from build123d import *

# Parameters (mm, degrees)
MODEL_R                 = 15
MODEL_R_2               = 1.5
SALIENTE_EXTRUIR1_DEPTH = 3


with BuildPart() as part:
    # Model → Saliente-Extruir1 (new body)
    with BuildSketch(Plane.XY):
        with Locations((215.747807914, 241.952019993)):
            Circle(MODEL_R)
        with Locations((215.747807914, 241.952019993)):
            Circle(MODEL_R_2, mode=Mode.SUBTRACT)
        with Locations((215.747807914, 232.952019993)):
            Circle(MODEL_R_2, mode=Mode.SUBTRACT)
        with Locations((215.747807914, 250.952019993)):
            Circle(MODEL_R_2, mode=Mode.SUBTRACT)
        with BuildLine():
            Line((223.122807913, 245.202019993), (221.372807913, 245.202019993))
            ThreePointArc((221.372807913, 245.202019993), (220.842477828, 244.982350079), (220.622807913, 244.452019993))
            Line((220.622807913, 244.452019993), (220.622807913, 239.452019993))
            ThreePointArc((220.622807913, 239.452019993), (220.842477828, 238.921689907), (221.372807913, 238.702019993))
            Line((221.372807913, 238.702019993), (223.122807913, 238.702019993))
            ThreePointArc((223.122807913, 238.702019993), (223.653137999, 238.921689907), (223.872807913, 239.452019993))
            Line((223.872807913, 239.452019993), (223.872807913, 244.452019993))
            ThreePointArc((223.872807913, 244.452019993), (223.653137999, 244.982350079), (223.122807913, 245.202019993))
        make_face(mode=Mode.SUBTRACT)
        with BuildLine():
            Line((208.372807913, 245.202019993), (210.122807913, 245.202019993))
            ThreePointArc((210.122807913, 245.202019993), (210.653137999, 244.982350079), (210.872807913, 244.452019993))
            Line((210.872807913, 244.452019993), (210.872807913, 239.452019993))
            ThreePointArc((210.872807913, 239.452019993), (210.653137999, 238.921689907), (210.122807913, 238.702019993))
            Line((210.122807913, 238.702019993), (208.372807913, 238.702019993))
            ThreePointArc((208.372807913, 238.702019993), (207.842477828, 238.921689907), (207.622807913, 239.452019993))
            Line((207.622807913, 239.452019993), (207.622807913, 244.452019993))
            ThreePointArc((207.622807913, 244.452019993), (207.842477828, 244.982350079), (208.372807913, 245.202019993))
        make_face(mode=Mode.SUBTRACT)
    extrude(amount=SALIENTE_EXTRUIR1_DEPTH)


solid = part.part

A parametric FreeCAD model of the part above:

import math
import FreeCAD as App
import Part
import Sketcher
from FreeCAD import Vector

doc = App.newDocument("Part")
params = doc.addObject("Spreadsheet::Sheet", "Params")
for row, (alias, value) in enumerate([
    ("sketch1_diameter", "30 mm"),
    ("sketch1_diameter2", "3 mm"),
    ("sketch1_height", "5 mm"),
    ("sketch1_radius", "0.75 mm"),
    ("sketch1_width", "1.75 mm"),
    ("pad1_length", "3 mm"),
], start=1):
    params.set(f"A{row}", alias)
    params.set(f"B{row}", "=" + value)
    params.setAlias(f"B{row}", alias)

body = doc.addObject("PartDesign::Body", "Body")

# Sketch on XY plane
sketch1 = doc.addObject("Sketcher::SketchObject", "Sketch")
body.addObject(sketch1)
sketch1.AttachmentSupport = (doc.XY_Plane, [""])
sketch1.MapMode = "FlatFace"
sketch1.addGeometry([
    Part.Circle(Vector(215.7, 242, 0), Vector(0, 0, 1), 15),  # 0
    Part.Circle(Vector(215.7, 233, 0), Vector(0, 0, 1), 1.5),  # 1
    Part.ArcOfCircle(Part.Circle(Vector(208.4, 244.5, 0), Vector(0, 0, 1), 0.8), math.radians(90), math.radians(180)),  # 2
    Part.LineSegment(Vector(208.4, 245.2, 0), Vector(210.1, 245.2, 0)),  # 3
    Part.ArcOfCircle(Part.Circle(Vector(210.1, 244.5, 0), Vector(0, 0, 1), 0.8), math.radians(0), math.radians(90)),  # 4
    Part.LineSegment(Vector(210.9, 244.5, 0), Vector(210.9, 239.5, 0)),  # 5
    Part.ArcOfCircle(Part.Circle(Vector(210.1, 239.5, 0), Vector(0, 0, 1), 0.8), math.radians(-90), math.radians(0)),  # 6
    Part.LineSegment(Vector(210.1, 238.7, 0), Vector(208.4, 238.7, 0)),  # 7
    Part.ArcOfCircle(Part.Circle(Vector(208.4, 239.5, 0), Vector(0, 0, 1), 0.8), math.radians(-180), math.radians(-90)),  # 8
    Part.LineSegment(Vector(207.6, 239.5, 0), Vector(207.6, 244.5, 0)),  # 9
    Part.Circle(Vector(215.7, 242, 0), Vector(0, 0, 1), 1.5),  # 10
    Part.LineSegment(Vector(221.4, 245.2, 0), Vector(223.1, 245.2, 0)),  # 11
    Part.ArcOfCircle(Part.Circle(Vector(223.1, 244.5, 0), Vector(0, 0, 1), 0.8), math.radians(0), math.radians(90)),  # 12
    Part.LineSegment(Vector(223.9, 244.5, 0), Vector(223.9, 239.5, 0)),  # 13
    Part.ArcOfCircle(Part.Circle(Vector(223.1, 239.5, 0), Vector(0, 0, 1), 0.8), math.radians(-90), math.radians(0)),  # 14
    Part.LineSegment(Vector(223.1, 238.7, 0), Vector(221.4, 238.7, 0)),  # 15
    Part.ArcOfCircle(Part.Circle(Vector(221.4, 239.5, 0), Vector(0, 0, 1), 0.8), math.radians(-180), math.radians(-90)),  # 16
    Part.LineSegment(Vector(220.6, 239.5, 0), Vector(220.6, 244.5, 0)),  # 17
    Part.ArcOfCircle(Part.Circle(Vector(221.4, 244.5, 0), Vector(0, 0, 1), 0.8), math.radians(90), math.radians(180)),  # 18
    Part.Circle(Vector(215.7, 251, 0), Vector(0, 0, 1), 1.5),  # 19
], False)
sketch1.addConstraint([
    Sketcher.Constraint("Tangent", 2, 1, 3, 1),
    Sketcher.Constraint("Tangent", 3, 2, 4, 2),
    Sketcher.Constraint("Tangent", 4, 1, 5, 1),
    Sketcher.Constraint("Tangent", 5, 2, 6, 2),
    Sketcher.Constraint("Tangent", 6, 1, 7, 1),
    Sketcher.Constraint("Tangent", 7, 2, 8, 2),
    Sketcher.Constraint("Tangent", 8, 1, 9, 1),
    Sketcher.Constraint("Tangent", 9, 2, 2, 2),
    Sketcher.Constraint("Tangent", 11, 2, 12, 2),
    Sketcher.Constraint("Tangent", 12, 1, 13, 1),
    Sketcher.Constraint("Tangent", 13, 2, 14, 2),
    Sketcher.Constraint("Tangent", 14, 1, 15, 1),
    Sketcher.Constraint("Tangent", 15, 2, 16, 2),
    Sketcher.Constraint("Tangent", 16, 1, 17, 1),
    Sketcher.Constraint("Tangent", 17, 2, 18, 2),
    Sketcher.Constraint("Tangent", 18, 1, 11, 1),
    Sketcher.Constraint("Horizontal", 3),
    Sketcher.Constraint("Vertical", 5),
    Sketcher.Constraint("Horizontal", 7),
    Sketcher.Constraint("Vertical", 9),
    Sketcher.Constraint("Horizontal", 11),
    Sketcher.Constraint("Vertical", 13),
    Sketcher.Constraint("Horizontal", 15),
    Sketcher.Constraint("Vertical", 17),
    Sketcher.Constraint("Coincident", 10, 3, 0, 3),
    Sketcher.Constraint("Equal", 2, 4),
    Sketcher.Constraint("Equal", 4, 6),
    Sketcher.Constraint("Equal", 6, 8),
    Sketcher.Constraint("Equal", 1, 10),
    Sketcher.Constraint("Equal", 8, 12),
    Sketcher.Constraint("Equal", 12, 14),
    Sketcher.Constraint("Equal", 14, 16),
    Sketcher.Constraint("Equal", 16, 18),
    Sketcher.Constraint("Equal", 10, 19),
    Sketcher.Constraint("Horizontal", 4, 3, 12, 3),
    Sketcher.Constraint("Horizontal", 8, 3, 14, 3),
    Sketcher.Constraint("Vertical", 0, 3, 1, 3),
    Sketcher.Constraint("Vertical", 10, 3, 19, 3),
    Sketcher.Constraint("Equal", 7, 11),
    Sketcher.Constraint("Diameter", 0, 30.0),
    Sketcher.Constraint("Diameter", 1, 3.0),
    Sketcher.Constraint("DistanceY", 5, 2, 5, 1, 5.0),
    Sketcher.Constraint("Radius", 2, 0.75),
    Sketcher.Constraint("DistanceY", 1, 3, 0, 3, 9.0),
    Sketcher.Constraint("DistanceX", 4, 3, 12, 3, 13.0),
    Sketcher.Constraint("DistanceY", 0, 3, 19, 3, 9.0),
    Sketcher.Constraint("DistanceX", 3, 1, 3, 2, 1.75),
    Sketcher.Constraint("DistanceY", 0, 3, 2, 3, 2.5),
    Sketcher.Constraint("DistanceX", 2, 3, 0, 3, 7.375),
    Sketcher.Constraint("DistanceY", -1, 1, 0, 3, 241.95202),
    Sketcher.Constraint("DistanceX", -1, 1, 0, 3, 215.747808),
])
sketch1.setExpression("Constraints[39]", "Params.sketch1_diameter")
sketch1.setExpression("Constraints[40]", "Params.sketch1_diameter2")
sketch1.setExpression("Constraints[41]", "Params.sketch1_height")
sketch1.setExpression("Constraints[42]", "Params.sketch1_radius")
sketch1.setExpression("Constraints[46]", "Params.sketch1_width")
pad1 = doc.addObject("PartDesign::Pad", "Pad")
body.addObject(pad1)
pad1.Profile = sketch1
pad1.setExpression("Length", "Params.pad1_length")

doc.recompute()
